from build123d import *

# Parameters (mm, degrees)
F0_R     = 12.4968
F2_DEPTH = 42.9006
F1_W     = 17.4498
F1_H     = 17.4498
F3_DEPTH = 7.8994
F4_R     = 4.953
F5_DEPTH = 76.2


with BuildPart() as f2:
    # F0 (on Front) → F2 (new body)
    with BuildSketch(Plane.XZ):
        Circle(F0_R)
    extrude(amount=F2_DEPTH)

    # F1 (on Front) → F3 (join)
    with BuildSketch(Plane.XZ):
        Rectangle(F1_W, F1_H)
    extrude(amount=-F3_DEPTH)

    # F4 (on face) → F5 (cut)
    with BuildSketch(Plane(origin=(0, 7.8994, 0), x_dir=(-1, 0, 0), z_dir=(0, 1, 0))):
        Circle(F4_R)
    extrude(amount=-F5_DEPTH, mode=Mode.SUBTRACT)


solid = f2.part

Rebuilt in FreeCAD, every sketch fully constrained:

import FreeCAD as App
import Part
import Sketcher
from FreeCAD import Vector
Q = App.Units.Quantity


def add_polygon(sketch, points):
    """Adds a closed chain of lines whose ends are joined by coincident constraints."""
    first, n = sketch.GeometryCount, len(points)
    for a, b in zip(points, points[1:] + points[:1]):
        sketch.addGeometry(Part.LineSegment(App.Vector(*a, 0), App.Vector(*b, 0)), False)
    for i in range(n):
        sketch.addConstraint(Sketcher.Constraint("Coincident", first + i, 2, first + (i + 1) % n, 1))

doc = App.newDocument("Part")
body = doc.addObject("PartDesign::Body", "Body")

sketch1 = body.newObject("Sketcher::SketchObject", "Sketch")
sketch1.AttachmentSupport = (doc.getObject("XZ_Plane"), [""])
sketch1.MapMode = "FlatFace"
sketch1.addGeometry(Part.Circle(Vector(0, 0, 0), Vector(0, 0, 1), 12.4968), False)
sketch1.addConstraint([
    Sketcher.Constraint("Coincident", 0, 3, -1, 1),
    Sketcher.Constraint("Diameter", 0, Q("0.984 in")),
])
pad1 = body.newObject("PartDesign::Pad", "Pad")
pad1.Profile = sketch1
pad1.Length = Q("1.689 in")

sketch2 = body.newObject("Sketcher::SketchObject", "Sketch001")
sketch2.AttachmentSupport = (doc.getObject("XZ_Plane"), [""])
sketch2.MapMode = "FlatFace"
add_polygon(sketch2, [(-8.7249, 8.7249), (-8.7249, -8.7249), (8.7249, -8.7249), (8.7249, 8.7249)])
sketch2.addConstraint([
    Sketcher.Constraint("Vertical", 0),
    Sketcher.Constraint("Horizontal", 1),
    Sketcher.Constraint("Vertical", 2),
    Sketcher.Constraint("Horizontal", 3),
    Sketcher.Constraint("Symmetric", 0, 2, 2, 2, -1, 1),
    Sketcher.Constraint("Equal", 3, 0),
    Sketcher.Constraint("DistanceX", 1, 1, 1, 2, Q("0.687 in")),
])
pad2 = body.newObject("PartDesign::Pad", "Pad001")
pad2.Profile = sketch2
pad2.Length = Q("0.311 in")
pad2.Reversed = True

sketch3 = body.newObject("Sketcher::SketchObject", "Sketch002")
sketch3.AttachmentSupport = (doc.getObject("XZ_Plane"), [""])
sketch3.MapMode = "FlatFace"
sketch3.AttachmentOffset = App.Placement(Vector(0, 0, -0.311 * 25.4), App.Rotation())
sketch3.addGeometry(Part.Circle(Vector(0, 0, 0), Vector(0, 0, 1), 4.953), False)
sketch3.addConstraint([
    Sketcher.Constraint("Coincident", 0, 3, -1, 1),
    Sketcher.Constraint("Diameter", 0, Q("0.39 in")),
])
pocket1 = body.newObject("PartDesign::Pocket", "Pocket")
pocket1.Profile = sketch3
pocket1.Length = Q("3 in")
pocket1.Reversed = True

doc.recompute()
